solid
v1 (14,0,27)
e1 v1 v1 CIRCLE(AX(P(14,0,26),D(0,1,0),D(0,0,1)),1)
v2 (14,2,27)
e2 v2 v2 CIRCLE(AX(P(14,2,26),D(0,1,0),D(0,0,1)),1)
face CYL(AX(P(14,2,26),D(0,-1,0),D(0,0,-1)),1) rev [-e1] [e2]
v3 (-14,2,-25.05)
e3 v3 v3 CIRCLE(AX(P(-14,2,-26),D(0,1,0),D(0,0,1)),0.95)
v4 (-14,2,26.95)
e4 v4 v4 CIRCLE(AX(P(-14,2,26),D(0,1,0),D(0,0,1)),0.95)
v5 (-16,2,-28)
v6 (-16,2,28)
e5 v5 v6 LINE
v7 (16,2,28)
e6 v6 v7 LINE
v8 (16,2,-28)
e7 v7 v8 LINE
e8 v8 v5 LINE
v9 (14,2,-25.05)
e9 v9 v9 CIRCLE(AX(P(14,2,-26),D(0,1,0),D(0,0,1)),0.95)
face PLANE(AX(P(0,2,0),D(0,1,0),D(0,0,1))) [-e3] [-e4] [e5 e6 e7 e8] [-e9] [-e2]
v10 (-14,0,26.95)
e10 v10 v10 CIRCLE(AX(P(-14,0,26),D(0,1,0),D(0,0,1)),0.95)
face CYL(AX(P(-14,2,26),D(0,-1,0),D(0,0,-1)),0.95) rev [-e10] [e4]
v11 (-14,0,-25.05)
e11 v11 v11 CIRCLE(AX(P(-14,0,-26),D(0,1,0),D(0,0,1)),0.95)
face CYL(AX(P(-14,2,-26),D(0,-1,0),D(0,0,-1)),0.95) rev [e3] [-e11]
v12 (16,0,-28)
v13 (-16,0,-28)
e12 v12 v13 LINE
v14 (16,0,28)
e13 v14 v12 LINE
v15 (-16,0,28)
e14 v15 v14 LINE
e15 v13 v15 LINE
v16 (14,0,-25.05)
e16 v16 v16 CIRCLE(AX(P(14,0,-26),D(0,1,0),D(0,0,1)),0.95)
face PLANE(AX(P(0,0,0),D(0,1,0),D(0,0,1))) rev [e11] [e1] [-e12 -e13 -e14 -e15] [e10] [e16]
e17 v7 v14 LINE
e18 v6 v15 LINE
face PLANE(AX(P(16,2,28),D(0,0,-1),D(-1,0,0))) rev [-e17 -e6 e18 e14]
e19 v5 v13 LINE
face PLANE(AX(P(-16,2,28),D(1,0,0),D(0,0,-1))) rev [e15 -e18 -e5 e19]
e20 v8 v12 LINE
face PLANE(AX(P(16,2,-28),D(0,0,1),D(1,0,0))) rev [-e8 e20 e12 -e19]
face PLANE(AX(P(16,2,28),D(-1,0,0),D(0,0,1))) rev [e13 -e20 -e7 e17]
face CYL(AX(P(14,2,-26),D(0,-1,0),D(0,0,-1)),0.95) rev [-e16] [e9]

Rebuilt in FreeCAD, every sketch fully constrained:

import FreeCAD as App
import Part
import Sketcher

V = App.Vector
Q = App.Units.Quantity

doc = App.newDocument("Part")
body = doc.addObject("PartDesign::Body", "Body")

# Sketch on XZ plane
sketch1 = doc.addObject("Sketcher::SketchObject", "Sketch")
body.addObject(sketch1)
sketch1.AttachmentSupport = (doc.XZ_Plane, [""])
sketch1.MapMode = "FlatFace"
sketch1.addGeometry([
    Part.LineSegment(V(-16, -28, 0), V(-16, 28, 0)),  # 0
    Part.LineSegment(V(-16, 28, 0), V(16, 28, 0)),  # 1
    Part.LineSegment(V(16, 28, 0), V(16, -28, 0)),  # 2
    Part.LineSegment(V(16, -28, 0), V(-16, -28, 0)),  # 3
    Part.Circle(V(-14, 26, 0), V(0, 0, 1), 0.9),  # 4
    Part.Circle(V(14, 26, 0), V(0, 0, 1), 1),  # 5
    Part.Circle(V(-14, -26, 0), V(0, 0, 1), 0.9),  # 6
    Part.Circle(V(14, -26, 0), V(0, 0, 1), 0.9),  # 7
], False)
sketch1.addConstraint([
    Sketcher.Constraint("Coincident", 0, 2, 1, 1),
    Sketcher.Constraint("Coincident", 1, 2, 2, 1),
    Sketcher.Constraint("Coincident", 2, 2, 3, 1),
    Sketcher.Constraint("Coincident", 3, 2, 0, 1),
    Sketcher.Constraint("Vertical", 0),
    Sketcher.Constraint("Horizontal", 1),
    Sketcher.Constraint("Vertical", 2),
    Sketcher.Constraint("Horizontal", 3),
    Sketcher.Constraint("Equal", 4, 6),
    Sketcher.Constraint("Equal", 6, 7),
    Sketcher.Constraint("Symmetric", 5, 3, 6, 3, -1, 1),
    Sketcher.Constraint("Symmetric", 4, 3, 7, 3, -1, 1),
    Sketcher.Constraint("Symmetric", 0, 2, 2, 2, -1, 1),
    Sketcher.Constraint("Symmetric", 4, 3, 5, 3, -2),
    Sketcher.Constraint("Diameter", 5, Q("2 mm")),
    Sketcher.Constraint("Diameter", 4, Q("1.9 mm")),
    Sketcher.Constraint("DistanceX", 1, 1, 1, 2, Q("32 mm")),
    Sketcher.Constraint("DistanceY", 0, 1, 0, 2, Q("56 mm")),
    Sketcher.Constraint("DistanceX", 4, 3, -1, 1, Q("14 mm")),
    Sketcher.Constraint("DistanceY", -1, 1, 4, 3, Q("26 mm")),
])
pad1 = doc.addObject("PartDesign::Pad", "Pad")
body.addObject(pad1)
pad1.Profile = sketch1
pad1.Length = 2
pad1.Reversed = True

doc.recompute()
